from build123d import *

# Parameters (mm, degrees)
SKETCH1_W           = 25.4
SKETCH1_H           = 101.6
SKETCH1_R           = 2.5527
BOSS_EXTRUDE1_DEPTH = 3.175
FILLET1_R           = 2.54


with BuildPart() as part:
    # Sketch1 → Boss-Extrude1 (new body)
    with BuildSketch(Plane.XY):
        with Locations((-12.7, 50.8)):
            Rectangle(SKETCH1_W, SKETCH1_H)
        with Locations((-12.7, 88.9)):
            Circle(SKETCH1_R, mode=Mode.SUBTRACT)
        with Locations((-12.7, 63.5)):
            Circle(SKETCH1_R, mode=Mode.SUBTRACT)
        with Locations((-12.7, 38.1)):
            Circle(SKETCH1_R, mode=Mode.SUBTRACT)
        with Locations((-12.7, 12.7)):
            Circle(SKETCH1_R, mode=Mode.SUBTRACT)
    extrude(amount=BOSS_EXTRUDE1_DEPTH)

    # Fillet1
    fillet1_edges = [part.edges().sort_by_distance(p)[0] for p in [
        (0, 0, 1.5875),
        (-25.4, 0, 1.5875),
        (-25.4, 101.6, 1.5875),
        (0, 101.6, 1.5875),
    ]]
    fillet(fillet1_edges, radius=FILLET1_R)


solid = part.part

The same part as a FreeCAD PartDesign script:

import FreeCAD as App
import Part
import Sketcher
from FreeCAD import Vector
Q = App.Units.Quantity


def edges_at(feature, points):
    """Names of the edges that pass closest to the given points."""
    edges = feature.Shape.Edges
    near = lambda p: min(range(len(edges)), key=lambda i: edges[i].distToShape(Part.Vertex(*p))[0])
    return sorted({f"Edge{near(p) + 1}" for p in points})


def add_polygon(sketch, points):
    """Adds a closed chain of lines whose ends are joined by coincident constraints."""
    first, n = sketch.GeometryCount, len(points)
    for a, b in zip(points, points[1:] + points[:1]):
        sketch.addGeometry(Part.LineSegment(App.Vector(*a, 0), App.Vector(*b, 0)), False)
    for i in range(n):
        sketch.addConstraint(Sketcher.Constraint("Coincident", first + i, 2, first + (i + 1) % n, 1))

doc = App.newDocument("Part")
body = doc.addObject("PartDesign::Body", "Body")

sketch1 = body.newObject("Sketcher::SketchObject", "Sketch")
sketch1.AttachmentSupport = (doc.getObject("XY_Plane"), [""])
sketch1.MapMode = "FlatFace"
add_polygon(sketch1, [(-25.4, 101.6), (-25.4, 0), (0, 0), (0, 101.6)])
sketch1.addGeometry(Part.Circle(Vector(-12.7, 12.7, 0), Vector(0, 0, 1), 2.6), False)
sketch1.addGeometry(Part.Circle(Vector(-12.7, 38.1, 0), Vector(0, 0, 1), 2.6), False)
sketch1.addGeometry(Part.Circle(Vector(-12.7, 63.5, 0), Vector(0, 0, 1), 2.6), False)
sketch1.addGeometry(Part.Circle(Vector(-12.7, 88.9, 0), Vector(0, 0, 1), 2.6), False)
sketch1.addConstraint([
    Sketcher.Constraint("Vertical", 0),
    Sketcher.Constraint("Horizontal", 1),
    Sketcher.Constraint("Vertical", 2),
    Sketcher.Constraint("Horizontal", 3),
    Sketcher.Constraint("Coincident", 1, 2, -1, 1),
    Sketcher.Constraint("Equal", 4, 5),
    Sketcher.Constraint("Equal", 5, 6),
    Sketcher.Constraint("Equal", 6, 7),
    Sketcher.Constraint("Vertical", 4, 3, 5, 3),
    Sketcher.Constraint("Vertical", 5, 3, 6, 3),
    Sketcher.Constraint("Vertical", 6, 3, 7, 3),
    Sketcher.Constraint("DistanceX", 1, 1, 1, 2, Q("1 in")),
    Sketcher.Constraint("DistanceY", 0, 2, 0, 1, Q("4 in")),
    Sketcher.Constraint("Diameter", 4, Q("0.201 in")),
    Sketcher.Constraint("DistanceY", 4, 3, 5, 3, Q("1 in")),
    Sketcher.Constraint("DistanceY", 5, 3, 6, 3, Q("1 in")),
    Sketcher.Constraint("DistanceY", 6, 3, 7, 3, Q("1 in")),
    Sketcher.Constraint("DistanceX", 4, 3, -1, 1, Q("0.5 in")),
    Sketcher.Constraint("DistanceY", -1, 1, 4, 3, Q("0.5 in")),
])
pad1 = body.newObject("PartDesign::Pad", "Pad")
pad1.Profile = sketch1
pad1.Length = Q("0.125 in")
doc.recompute()

fillet = body.newObject("PartDesign::Fillet", "Fillet")
fillet.Base = (pad1, edges_at(pad1, [
    (0, 0, 1.587),
    (-25.4, 0, 1.587),
    (-25.4, 101.6, 1.587),
    (0, 101.6, 1.587),
]))
fillet.Radius = Q("0.1 in")

doc.recompute()
